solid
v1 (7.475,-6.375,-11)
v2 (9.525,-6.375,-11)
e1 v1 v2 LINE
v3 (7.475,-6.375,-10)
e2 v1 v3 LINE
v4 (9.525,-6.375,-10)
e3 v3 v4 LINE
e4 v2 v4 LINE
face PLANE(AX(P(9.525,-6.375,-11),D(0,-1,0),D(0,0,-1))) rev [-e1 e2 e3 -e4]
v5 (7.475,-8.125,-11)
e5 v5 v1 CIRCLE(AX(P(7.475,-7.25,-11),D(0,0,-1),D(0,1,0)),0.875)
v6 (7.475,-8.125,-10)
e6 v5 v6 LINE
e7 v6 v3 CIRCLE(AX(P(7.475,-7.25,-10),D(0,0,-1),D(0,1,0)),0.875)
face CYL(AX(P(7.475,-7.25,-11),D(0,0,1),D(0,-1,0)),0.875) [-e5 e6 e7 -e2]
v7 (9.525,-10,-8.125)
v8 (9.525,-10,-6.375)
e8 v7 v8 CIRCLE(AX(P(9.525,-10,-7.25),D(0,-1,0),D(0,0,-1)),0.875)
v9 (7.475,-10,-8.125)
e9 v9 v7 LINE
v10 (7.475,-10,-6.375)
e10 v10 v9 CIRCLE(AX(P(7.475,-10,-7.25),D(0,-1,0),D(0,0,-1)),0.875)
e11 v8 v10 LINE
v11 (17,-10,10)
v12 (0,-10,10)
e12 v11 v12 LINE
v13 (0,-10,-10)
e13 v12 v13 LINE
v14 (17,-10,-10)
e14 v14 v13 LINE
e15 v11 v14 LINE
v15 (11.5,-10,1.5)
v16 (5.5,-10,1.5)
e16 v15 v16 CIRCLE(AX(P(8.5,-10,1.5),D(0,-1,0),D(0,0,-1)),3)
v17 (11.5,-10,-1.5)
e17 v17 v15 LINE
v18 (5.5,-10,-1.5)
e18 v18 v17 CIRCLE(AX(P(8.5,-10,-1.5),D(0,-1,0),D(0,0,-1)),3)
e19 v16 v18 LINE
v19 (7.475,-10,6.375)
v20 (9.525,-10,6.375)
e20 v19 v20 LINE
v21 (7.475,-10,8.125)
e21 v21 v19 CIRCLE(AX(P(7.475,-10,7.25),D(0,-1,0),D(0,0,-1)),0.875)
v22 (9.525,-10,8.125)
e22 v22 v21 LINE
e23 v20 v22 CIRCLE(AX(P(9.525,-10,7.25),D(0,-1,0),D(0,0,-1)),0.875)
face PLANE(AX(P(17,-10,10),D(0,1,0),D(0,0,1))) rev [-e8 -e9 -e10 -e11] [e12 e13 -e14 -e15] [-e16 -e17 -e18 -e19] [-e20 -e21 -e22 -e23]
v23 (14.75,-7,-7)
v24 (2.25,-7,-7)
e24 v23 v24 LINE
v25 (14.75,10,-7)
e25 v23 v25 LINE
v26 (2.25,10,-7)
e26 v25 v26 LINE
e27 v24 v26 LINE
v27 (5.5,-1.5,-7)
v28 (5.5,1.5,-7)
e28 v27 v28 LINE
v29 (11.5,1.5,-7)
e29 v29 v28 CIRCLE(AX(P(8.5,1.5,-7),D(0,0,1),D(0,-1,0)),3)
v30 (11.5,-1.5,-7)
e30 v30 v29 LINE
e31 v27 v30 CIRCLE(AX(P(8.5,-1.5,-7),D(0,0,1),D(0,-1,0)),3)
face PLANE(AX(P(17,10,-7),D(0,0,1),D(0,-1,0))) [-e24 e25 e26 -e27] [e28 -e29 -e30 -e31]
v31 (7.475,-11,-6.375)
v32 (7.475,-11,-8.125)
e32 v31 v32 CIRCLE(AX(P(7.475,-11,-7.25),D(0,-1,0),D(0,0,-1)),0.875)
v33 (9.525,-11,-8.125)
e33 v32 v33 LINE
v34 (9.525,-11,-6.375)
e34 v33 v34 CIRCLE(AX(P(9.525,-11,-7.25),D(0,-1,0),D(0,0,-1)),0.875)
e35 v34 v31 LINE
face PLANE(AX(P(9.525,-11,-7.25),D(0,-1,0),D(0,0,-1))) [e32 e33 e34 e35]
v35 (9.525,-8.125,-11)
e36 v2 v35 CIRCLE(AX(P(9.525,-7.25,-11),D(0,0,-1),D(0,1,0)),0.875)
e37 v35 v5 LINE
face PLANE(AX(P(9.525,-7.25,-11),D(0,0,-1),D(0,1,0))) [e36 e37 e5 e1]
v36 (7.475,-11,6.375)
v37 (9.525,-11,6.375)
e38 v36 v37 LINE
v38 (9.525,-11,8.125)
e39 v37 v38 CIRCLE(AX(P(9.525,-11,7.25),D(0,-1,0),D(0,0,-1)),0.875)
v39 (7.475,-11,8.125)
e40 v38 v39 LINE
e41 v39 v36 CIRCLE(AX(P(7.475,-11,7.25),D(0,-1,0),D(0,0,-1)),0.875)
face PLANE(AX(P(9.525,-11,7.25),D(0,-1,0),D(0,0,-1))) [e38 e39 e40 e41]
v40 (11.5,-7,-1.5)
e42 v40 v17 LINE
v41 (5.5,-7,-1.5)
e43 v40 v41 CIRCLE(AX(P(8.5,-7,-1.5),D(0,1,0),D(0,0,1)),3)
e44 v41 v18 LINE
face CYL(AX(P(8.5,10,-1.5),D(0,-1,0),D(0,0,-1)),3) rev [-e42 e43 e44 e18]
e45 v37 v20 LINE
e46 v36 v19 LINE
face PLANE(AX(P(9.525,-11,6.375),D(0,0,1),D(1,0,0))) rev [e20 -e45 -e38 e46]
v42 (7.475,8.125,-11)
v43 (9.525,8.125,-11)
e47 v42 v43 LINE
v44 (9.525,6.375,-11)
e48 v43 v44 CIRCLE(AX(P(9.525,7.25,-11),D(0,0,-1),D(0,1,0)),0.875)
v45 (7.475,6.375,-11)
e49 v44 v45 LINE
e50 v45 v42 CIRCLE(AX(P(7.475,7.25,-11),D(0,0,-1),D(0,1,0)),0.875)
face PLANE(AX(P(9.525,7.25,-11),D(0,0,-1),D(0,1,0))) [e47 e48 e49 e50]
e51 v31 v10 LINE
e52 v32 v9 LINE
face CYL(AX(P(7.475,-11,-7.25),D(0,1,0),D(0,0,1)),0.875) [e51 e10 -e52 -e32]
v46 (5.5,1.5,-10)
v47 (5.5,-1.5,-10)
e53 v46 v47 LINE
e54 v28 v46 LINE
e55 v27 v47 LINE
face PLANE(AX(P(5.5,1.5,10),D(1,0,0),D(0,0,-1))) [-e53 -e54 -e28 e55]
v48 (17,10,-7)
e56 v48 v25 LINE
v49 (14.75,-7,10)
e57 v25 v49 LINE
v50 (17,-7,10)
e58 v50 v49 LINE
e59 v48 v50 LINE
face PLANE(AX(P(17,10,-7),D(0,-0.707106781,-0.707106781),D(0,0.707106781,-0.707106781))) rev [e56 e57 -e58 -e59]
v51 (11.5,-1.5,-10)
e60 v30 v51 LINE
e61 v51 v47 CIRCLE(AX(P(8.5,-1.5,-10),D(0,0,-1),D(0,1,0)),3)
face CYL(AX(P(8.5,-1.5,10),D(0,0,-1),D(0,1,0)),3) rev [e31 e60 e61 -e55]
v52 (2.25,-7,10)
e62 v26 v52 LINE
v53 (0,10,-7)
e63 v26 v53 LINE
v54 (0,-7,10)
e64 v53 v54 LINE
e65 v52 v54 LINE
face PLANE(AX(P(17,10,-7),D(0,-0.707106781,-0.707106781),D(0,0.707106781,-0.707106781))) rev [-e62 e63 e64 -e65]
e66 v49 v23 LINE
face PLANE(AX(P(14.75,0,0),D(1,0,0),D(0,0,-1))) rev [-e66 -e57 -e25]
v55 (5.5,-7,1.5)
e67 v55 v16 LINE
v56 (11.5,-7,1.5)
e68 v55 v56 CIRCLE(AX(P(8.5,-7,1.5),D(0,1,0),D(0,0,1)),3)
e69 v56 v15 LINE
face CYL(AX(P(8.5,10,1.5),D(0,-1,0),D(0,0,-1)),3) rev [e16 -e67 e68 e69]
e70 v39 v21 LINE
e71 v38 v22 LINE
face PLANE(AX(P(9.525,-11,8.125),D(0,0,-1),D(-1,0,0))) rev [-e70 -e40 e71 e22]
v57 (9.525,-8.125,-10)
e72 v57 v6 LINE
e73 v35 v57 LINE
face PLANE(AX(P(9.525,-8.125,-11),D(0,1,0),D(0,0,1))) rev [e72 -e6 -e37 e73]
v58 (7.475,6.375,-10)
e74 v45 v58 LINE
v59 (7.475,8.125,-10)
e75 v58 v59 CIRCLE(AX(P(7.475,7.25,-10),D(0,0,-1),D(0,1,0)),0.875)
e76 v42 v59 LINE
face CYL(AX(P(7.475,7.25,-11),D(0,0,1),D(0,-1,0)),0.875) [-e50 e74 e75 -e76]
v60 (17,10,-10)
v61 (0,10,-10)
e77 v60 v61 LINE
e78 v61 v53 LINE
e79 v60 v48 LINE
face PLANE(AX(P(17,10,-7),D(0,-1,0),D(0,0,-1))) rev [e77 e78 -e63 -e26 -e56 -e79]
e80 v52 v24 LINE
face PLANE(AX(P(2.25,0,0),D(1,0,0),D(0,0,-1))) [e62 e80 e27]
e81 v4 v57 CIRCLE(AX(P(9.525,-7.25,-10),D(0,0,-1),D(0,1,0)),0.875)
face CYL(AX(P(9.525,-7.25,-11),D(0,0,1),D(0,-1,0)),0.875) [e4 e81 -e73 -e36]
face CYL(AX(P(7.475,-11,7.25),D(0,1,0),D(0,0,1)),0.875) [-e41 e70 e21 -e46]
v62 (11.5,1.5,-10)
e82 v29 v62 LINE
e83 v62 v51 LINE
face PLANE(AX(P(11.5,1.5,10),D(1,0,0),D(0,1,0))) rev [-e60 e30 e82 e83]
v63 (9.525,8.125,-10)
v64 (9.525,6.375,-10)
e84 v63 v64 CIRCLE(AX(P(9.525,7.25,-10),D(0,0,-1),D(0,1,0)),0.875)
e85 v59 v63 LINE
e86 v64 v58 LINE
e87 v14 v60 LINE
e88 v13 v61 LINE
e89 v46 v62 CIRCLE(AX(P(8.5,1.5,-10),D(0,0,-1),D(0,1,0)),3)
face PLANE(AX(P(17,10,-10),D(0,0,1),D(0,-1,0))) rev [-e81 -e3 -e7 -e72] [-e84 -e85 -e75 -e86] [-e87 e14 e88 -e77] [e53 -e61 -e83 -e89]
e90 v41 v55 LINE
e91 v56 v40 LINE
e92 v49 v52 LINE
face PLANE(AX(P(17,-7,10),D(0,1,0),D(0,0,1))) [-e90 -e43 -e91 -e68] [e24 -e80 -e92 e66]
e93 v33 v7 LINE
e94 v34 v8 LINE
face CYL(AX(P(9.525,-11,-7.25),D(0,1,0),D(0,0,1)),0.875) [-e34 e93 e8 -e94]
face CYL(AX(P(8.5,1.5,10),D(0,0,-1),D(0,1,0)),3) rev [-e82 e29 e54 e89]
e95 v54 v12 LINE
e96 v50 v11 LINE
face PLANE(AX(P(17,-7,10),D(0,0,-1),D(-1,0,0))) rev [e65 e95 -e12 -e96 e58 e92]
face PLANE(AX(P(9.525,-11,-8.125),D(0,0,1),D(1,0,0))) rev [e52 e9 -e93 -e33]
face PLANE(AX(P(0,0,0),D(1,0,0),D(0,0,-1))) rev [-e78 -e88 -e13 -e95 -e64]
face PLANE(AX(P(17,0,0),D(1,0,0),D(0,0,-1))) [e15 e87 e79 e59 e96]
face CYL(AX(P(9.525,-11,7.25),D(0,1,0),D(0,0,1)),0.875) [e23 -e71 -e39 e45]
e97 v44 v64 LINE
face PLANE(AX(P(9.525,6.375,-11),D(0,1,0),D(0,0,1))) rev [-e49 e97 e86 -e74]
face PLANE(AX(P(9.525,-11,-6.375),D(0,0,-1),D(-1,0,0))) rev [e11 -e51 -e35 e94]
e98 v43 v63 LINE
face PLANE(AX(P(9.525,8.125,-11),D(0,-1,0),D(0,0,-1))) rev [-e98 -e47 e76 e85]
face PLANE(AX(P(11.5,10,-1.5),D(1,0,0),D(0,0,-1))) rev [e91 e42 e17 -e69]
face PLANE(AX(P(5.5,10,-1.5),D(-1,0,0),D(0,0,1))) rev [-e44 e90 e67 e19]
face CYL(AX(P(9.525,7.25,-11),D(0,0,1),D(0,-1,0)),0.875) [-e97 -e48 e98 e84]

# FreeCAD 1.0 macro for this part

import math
import FreeCAD as App
import Part
import Sketcher


def faces_at(feature, points):
    """Names of the faces that lie closest to the given points."""
    faces = feature.Shape.Faces
    near = lambda p: min(range(len(faces)), key=lambda i: faces[i].distToShape(Part.Vertex(*p))[0])
    return sorted({f"Face{near(p) + 1}" for p in points})


def add_polygon(sketch, points):
    """Adds a closed chain of lines whose ends are joined by coincident constraints."""
    first, n = sketch.GeometryCount, len(points)
    for a, b in zip(points, points[1:] + points[:1]):
        sketch.addGeometry(Part.LineSegment(App.Vector(*a, 0), App.Vector(*b, 0)), False)
    for i in range(n):
        sketch.addConstraint(Sketcher.Constraint("Coincident", first + i, 2, first + (i + 1) % n, 1))

doc = App.newDocument("Part")
body = doc.addObject("PartDesign::Body", "Body")

sketch1 = doc.addObject("Sketcher::SketchObject", "Sketch")
body.addObject(sketch1)
sketch1.AttachmentSupport = (doc.YZ_Plane, [""])
sketch1.MapMode = "FlatFace"
add_polygon(sketch1, [(10, -7), (-7, 10), (-10, 10), (-10, -10), (10, -10)])
sketch1.addConstraint([
    Sketcher.Constraint("Horizontal", 1),
    Sketcher.Constraint("Vertical", 2),
    Sketcher.Constraint("Horizontal", 3),
    Sketcher.Constraint("Vertical", 4),
    Sketcher.Constraint("Symmetric", 1, 2, 3, 2, -1, 1),
    Sketcher.Constraint("Equal", 3, 2),
    Sketcher.Constraint("Equal", 1, 4),
    Sketcher.Constraint("DistanceX", 1, 2, 1, 1, 3.0),
    Sketcher.Constraint("DistanceX", 3, 1, 3, 2, 20.0),
])
pad1 = doc.addObject("PartDesign::Pad", "Pad")
body.addObject(pad1)
pad1.Profile = sketch1
pad1.Length = 17
doc.recompute()

thickness = doc.addObject("PartDesign::Thickness", "Thickness")
body.addObject(thickness)
thickness.Base = (pad1, faces_at(pad1, [(8.5, 10, -8.5), (8.5, -8.5, 10), (8.5, 1.5, 1.5)]))
thickness.Value = 2.25
thickness.Reversed = True
thickness.Join = "Intersection"

sketch2 = doc.addObject("Sketcher::SketchObject", "Sketch001")
body.addObject(sketch2)
sketch2.AttachmentSupport = (doc.XZ_Plane, [""])
sketch2.MapMode = "FlatFace"
sketch2.AttachmentOffset = App.Placement(App.Vector(0, 0, 7.75), App.Rotation())
add_polygon(sketch2, [(14.75, 10), (2.25, 10), (2.25, -7.75), (14.75, -7.75)])
sketch2.addConstraint([
    Sketcher.Constraint("Horizontal", 0),
    Sketcher.Constraint("Vertical", 1),
    Sketcher.Constraint("Horizontal", 2),
    Sketcher.Constraint("Vertical", 3),
    Sketcher.Constraint("DistanceX", 0, 2, 0, 1, 12.5),
    Sketcher.Constraint("DistanceY", -1, 1, 0, 2, 10.0),
    Sketcher.Constraint("DistanceY", 1, 2, 1, 1, 17.75),
    Sketcher.Constraint("DistanceX", -1, 1, 0, 2, 2.25),
])
pad2 = doc.addObject("PartDesign::Pad", "Pad001")
body.addObject(pad2)
pad2.Profile = sketch2
pad2.Length = 0.75
pad2.Reversed = True

sketch3 = doc.addObject("Sketcher::SketchObject", "Sketch002")
body.addObject(sketch3)
sketch3.AttachmentSupport = (doc.XY_Plane, [""])
sketch3.MapMode = "FlatFace"
sketch3.AttachmentOffset = App.Placement(App.Vector(0, 0, -7.75), App.Rotation())
add_polygon(sketch3, [(2.25, 10), (14.75, 10), (14.75, -7), (2.25, -7)])
sketch3.addConstraint([
    Sketcher.Constraint("Horizontal", 0),
    Sketcher.Constraint("Vertical", 1),
    Sketcher.Constraint("Horizontal", 2),
    Sketcher.Constraint("Vertical", 3),
    Sketcher.Constraint("DistanceY", 1, 2, 1, 1, 17.0),
    Sketcher.Constraint("DistanceX", 0, 1, 0, 2, 12.5),
    Sketcher.Constraint("DistanceY", -1, 1, 0, 2, 10.0),
    Sketcher.Constraint("DistanceX", -1, 1, 0, 2, 14.75),
])
pad3 = doc.addObject("PartDesign::Pad", "Pad002")
body.addObject(pad3)
pad3.Profile = sketch3
pad3.Length = 0.75

sketch4 = doc.addObject("Sketcher::SketchObject", "Sketch003")
body.addObject(sketch4)
sketch4.AttachmentSupport = (doc.XY_Plane, [""])
sketch4.MapMode = "FlatFace"
sketch4.AttachmentOffset = App.Placement(App.Vector(0, 0, -10), App.Rotation())
sketch4.addGeometry([
    Part.LineSegment(App.Vector(11.5, 1.5, 0), App.Vector(11.5, -1.5, 0)),
    Part.ArcOfCircle(Part.Circle(App.Vector(8.5, -1.5, 0), App.Vector(0, 0, 1), 3), math.radians(180), math.radians(360)),
    Part.LineSegment(App.Vector(5.5, -1.5, 0), App.Vector(5.5, 1.5, 0)),
    Part.ArcOfCircle(Part.Circle(App.Vector(8.5, 1.5, 0), App.Vector(0, 0, 1), 3), math.radians(0), math.radians(180)),
], False)
sketch4.addConstraint([
    Sketcher.Constraint("Tangent", 0, 2, 1, 2),
    Sketcher.Constraint("Tangent", 1, 1, 2, 1),
    Sketcher.Constraint("Tangent", 2, 2, 3, 2),
    Sketcher.Constraint("Tangent", 3, 1, 0, 1),
    Sketcher.Constraint("Vertical", 0),
    Sketcher.Constraint("Vertical", 2),
    Sketcher.Constraint("Radius", 1, 3.0),
    Sketcher.Constraint("DistanceY", 0, 2, 0, 1, 3.0),
    Sketcher.Constraint("DistanceX", -1, 1, 1, 3, 8.5),
    Sketcher.Constraint("DistanceY", 1, 3, -1, 1, 1.5),
])
pocket1 = doc.addObject("PartDesign::Pocket", "Pocket")
body.addObject(pocket1)
pocket1.Profile = sketch4
pocket1.Type = "ThroughAll"
pocket1.Reversed = True

sketch5 = doc.addObject("Sketcher::SketchObject", "Sketch004")
body.addObject(sketch5)
sketch5.AttachmentSupport = (doc.XZ_Plane, [""])
sketch5.MapMode = "FlatFace"
sketch5.AttachmentOffset = App.Placement(App.Vector(0, 0, 10), App.Rotation())
sketch5.addGeometry([
    Part.LineSegment(App.Vector(11.5, -1.5, 0), App.Vector(11.5, 1.5, 0)),
    Part.ArcOfCircle(Part.Circle(App.Vector(8.5, 1.5, 0), App.Vector(0, 0, 1), 3), math.radians(0), math.radians(180)),
    Part.LineSegment(App.Vector(5.5, 1.5, 0), App.Vector(5.5, -1.5, 0)),
    Part.ArcOfCircle(Part.Circle(App.Vector(8.5, -1.5, 0), App.Vector(0, 0, 1), 3), math.radians(180), math.radians(360)),
], False)
sketch5.addConstraint([
    Sketcher.Constraint("Tangent", 0, 2, 1, 1),
    Sketcher.Constraint("Tangent", 1, 2, 2, 1),
    Sketcher.Constraint("Tangent", 2, 2, 3, 1),
    Sketcher.Constraint("Tangent", 3, 2, 0, 1),
    Sketcher.Constraint("Vertical", 0),
    Sketcher.Constraint("Vertical", 2),
    Sketcher.Constraint("Radius", 1, 3.0),
    Sketcher.Constraint("DistanceY", 0, 1, 0, 2, 3.0),
    Sketcher.Constraint("DistanceX", -1, 1, 1, 3, 8.5),
    Sketcher.Constraint("DistanceY", -1, 1, 1, 3, 1.5),
])
pocket2 = doc.addObject("PartDesign::Pocket", "Pocket001")
body.addObject(pocket2)
pocket2.Profile = sketch5
pocket2.Type = "ThroughAll"

sketch6 = doc.addObject("Sketcher::SketchObject", "Sketch005")
body.addObject(sketch6)
sketch6.AttachmentSupport = (doc.XY_Plane, [""])
sketch6.MapMode = "FlatFace"
sketch6.AttachmentOffset = App.Placement(App.Vector(0, 0, -10), App.Rotation())
sketch6.addGeometry([
    Part.LineSegment(App.Vector(7.475, 8.125, 0), App.Vector(9.525, 8.125, 0)),
    Part.ArcOfCircle(Part.Circle(App.Vector(9.525, 7.25, 0), App.Vector(0, 0, 1), 0.875), math.radians(-90), math.radians(90)),
    Part.LineSegment(App.Vector(9.525, 6.375, 0), App.Vector(7.475, 6.375, 0)),
    Part.ArcOfCircle(Part.Circle(App.Vector(7.475, 7.25, 0), App.Vector(0, 0, 1), 0.875), math.radians(90), math.radians(270)),
], False)
sketch6.addConstraint([
    Sketcher.Constraint("Tangent", 0, 2, 1, 2),
    Sketcher.Constraint("Tangent", 1, 1, 2, 1),
    Sketcher.Constraint("Tangent", 2, 2, 3, 2),
    Sketcher.Constraint("Tangent", 3, 1, 0, 1),
    Sketcher.Constraint("Horizontal", 0),
    Sketcher.Constraint("Horizontal", 2),
    Sketcher.Constraint("Radius", 1, 0.875),
    Sketcher.Constraint("DistanceX", 0, 1, 0, 2, 2.05),
    Sketcher.Constraint("DistanceY", -1, 1, 1, 3, 7.25),
    Sketcher.Constraint("DistanceX", -1, 1, 1, 3, 9.525),
])
pad4 = doc.addObject("PartDesign::Pad", "Pad003")
body.addObject(pad4)
pad4.Profile = sketch6
pad4.Length = 1
pad4.Reversed = True

sketch7 = doc.addObject("Sketcher::SketchObject", "Sketch006")
body.addObject(sketch7)
sketch7.AttachmentSupport = (doc.XY_Plane, [""])
sketch7.MapMode = "FlatFace"
sketch7.AttachmentOffset = App.Placement(App.Vector(0, 0, -10), App.Rotation())
sketch7.addGeometry([
    Part.LineSegment(App.Vector(7.475, -6.375, 0), App.Vector(9.525, -6.375, 0)),
    Part.ArcOfCircle(Part.Circle(App.Vector(9.525, -7.25, 0), App.Vector(0, 0, 1), 0.875), math.radians(-90), math.radians(90)),
    Part.LineSegment(App.Vector(9.525, -8.125, 0), App.Vector(7.475, -8.125, 0)),
    Part.ArcOfCircle(Part.Circle(App.Vector(7.475, -7.25, 0), App.Vector(0, 0, 1), 0.875), math.radians(90), math.radians(270)),
], False)
sketch7.addConstraint([
    Sketcher.Constraint("Tangent", 0, 2, 1, 2),
    Sketcher.Constraint("Tangent", 1, 1, 2, 1),
    Sketcher.Constraint("Tangent", 2, 2, 3, 2),
    Sketcher.Constraint("Tangent", 3, 1, 0, 1),
    Sketcher.Constraint("Horizontal", 0),
    Sketcher.Constraint("Horizontal", 2),
    Sketcher.Constraint("Radius", 1, 0.875),
    Sketcher.Constraint("DistanceX", 0, 1, 0, 2, 2.05),
    Sketcher.Constraint("DistanceY", 1, 3, -1, 1, 7.25),
    Sketcher.Constraint("DistanceX", -1, 1, 1, 3, 9.525),
])
pad5 = doc.addObject("PartDesign::Pad", "Pad004")
body.addObject(pad5)
pad5.Profile = sketch7
pad5.Length = 1
pad5.Reversed = True

sketch8 = doc.addObject("Sketcher::SketchObject", "Sketch007")
body.addObject(sketch8)
sketch8.AttachmentSupport = (doc.XZ_Plane, [""])
sketch8.MapMode = "FlatFace"
sketch8.AttachmentOffset = App.Placement(App.Vector(0, 0, 10), App.Rotation())
sketch8.addGeometry([
    Part.LineSegment(App.Vector(7.475, -8.125, 0), App.Vector(9.525, -8.125, 0)),
    Part.ArcOfCircle(Part.Circle(App.Vector(9.525, -7.25, 0), App.Vector(0, 0, 1), 0.875), math.radians(-90), math.radians(90)),
    Part.LineSegment(App.Vector(9.525, -6.375, 0), App.Vector(7.475, -6.375, 0)),
    Part.ArcOfCircle(Part.Circle(App.Vector(7.475, -7.25, 0), App.Vector(0, 0, 1), 0.875), math.radians(90), math.radians(270)),
], False)
sketch8.addConstraint([
    Sketcher.Constraint("Tangent", 0, 2, 1, 1),
    Sketcher.Constraint("Tangent", 1, 2, 2, 1),
    Sketcher.Constraint("Tangent", 2, 2, 3, 1),
    Sketcher.Constraint("Tangent", 3, 2, 0, 1),
    Sketcher.Constraint("Horizontal", 0),
    Sketcher.Constraint("Horizontal", 2),
    Sketcher.Constraint("Radius", 1, 0.875),
    Sketcher.Constraint("DistanceX", 0, 1, 0, 2, 2.05),
    Sketcher.Constraint("DistanceY", 1, 3, -1, 1, 7.25),
    Sketcher.Constraint("DistanceX", -1, 1, 1, 3, 9.525),
])
pad6 = doc.addObject("PartDesign::Pad", "Pad005")
body.addObject(pad6)
pad6.Profile = sketch8
pad6.Length = 1

sketch9 = doc.addObject("Sketcher::SketchObject", "Sketch008")
body.addObject(sketch9)
sketch9.AttachmentSupport = (doc.XZ_Plane, [""])
sketch9.MapMode = "FlatFace"
sketch9.AttachmentOffset = App.Placement(App.Vector(0, 0, 10), App.Rotation())
sketch9.addGeometry([
    Part.LineSegment(App.Vector(7.475, 6.375, 0), App.Vector(9.525, 6.375, 0)),
    Part.ArcOfCircle(Part.Circle(App.Vector(9.525, 7.25, 0), App.Vector(0, 0, 1), 0.875), math.radians(-90), math.radians(90)),
    Part.LineSegment(App.Vector(9.525, 8.125, 0), App.Vector(7.475, 8.125, 0)),
    Part.ArcOfCircle(Part.Circle(App.Vector(7.475, 7.25, 0), App.Vector(0, 0, 1), 0.875), math.radians(90), math.radians(270)),
], False)
sketch9.addConstraint([
    Sketcher.Constraint("Tangent", 0, 2, 1, 1),
    Sketcher.Constraint("Tangent", 1, 2, 2, 1),
    Sketcher.Constraint("Tangent", 2, 2, 3, 1),
    Sketcher.Constraint("Tangent", 3, 2, 0, 1),
    Sketcher.Constraint("Horizontal", 0),
    Sketcher.Constraint("Horizontal", 2),
    Sketcher.Constraint("Radius", 1, 0.875),
    Sketcher.Constraint("DistanceX", 0, 1, 0, 2, 2.05),
    Sketcher.Constraint("DistanceY", -1, 1, 1, 3, 7.25),
    Sketcher.Constraint("DistanceX", -1, 1, 1, 3, 9.525),
])
pad7 = doc.addObject("PartDesign::Pad", "Pad006")
body.addObject(pad7)
pad7.Profile = sketch9
pad7.Length = 1

doc.recompute()
